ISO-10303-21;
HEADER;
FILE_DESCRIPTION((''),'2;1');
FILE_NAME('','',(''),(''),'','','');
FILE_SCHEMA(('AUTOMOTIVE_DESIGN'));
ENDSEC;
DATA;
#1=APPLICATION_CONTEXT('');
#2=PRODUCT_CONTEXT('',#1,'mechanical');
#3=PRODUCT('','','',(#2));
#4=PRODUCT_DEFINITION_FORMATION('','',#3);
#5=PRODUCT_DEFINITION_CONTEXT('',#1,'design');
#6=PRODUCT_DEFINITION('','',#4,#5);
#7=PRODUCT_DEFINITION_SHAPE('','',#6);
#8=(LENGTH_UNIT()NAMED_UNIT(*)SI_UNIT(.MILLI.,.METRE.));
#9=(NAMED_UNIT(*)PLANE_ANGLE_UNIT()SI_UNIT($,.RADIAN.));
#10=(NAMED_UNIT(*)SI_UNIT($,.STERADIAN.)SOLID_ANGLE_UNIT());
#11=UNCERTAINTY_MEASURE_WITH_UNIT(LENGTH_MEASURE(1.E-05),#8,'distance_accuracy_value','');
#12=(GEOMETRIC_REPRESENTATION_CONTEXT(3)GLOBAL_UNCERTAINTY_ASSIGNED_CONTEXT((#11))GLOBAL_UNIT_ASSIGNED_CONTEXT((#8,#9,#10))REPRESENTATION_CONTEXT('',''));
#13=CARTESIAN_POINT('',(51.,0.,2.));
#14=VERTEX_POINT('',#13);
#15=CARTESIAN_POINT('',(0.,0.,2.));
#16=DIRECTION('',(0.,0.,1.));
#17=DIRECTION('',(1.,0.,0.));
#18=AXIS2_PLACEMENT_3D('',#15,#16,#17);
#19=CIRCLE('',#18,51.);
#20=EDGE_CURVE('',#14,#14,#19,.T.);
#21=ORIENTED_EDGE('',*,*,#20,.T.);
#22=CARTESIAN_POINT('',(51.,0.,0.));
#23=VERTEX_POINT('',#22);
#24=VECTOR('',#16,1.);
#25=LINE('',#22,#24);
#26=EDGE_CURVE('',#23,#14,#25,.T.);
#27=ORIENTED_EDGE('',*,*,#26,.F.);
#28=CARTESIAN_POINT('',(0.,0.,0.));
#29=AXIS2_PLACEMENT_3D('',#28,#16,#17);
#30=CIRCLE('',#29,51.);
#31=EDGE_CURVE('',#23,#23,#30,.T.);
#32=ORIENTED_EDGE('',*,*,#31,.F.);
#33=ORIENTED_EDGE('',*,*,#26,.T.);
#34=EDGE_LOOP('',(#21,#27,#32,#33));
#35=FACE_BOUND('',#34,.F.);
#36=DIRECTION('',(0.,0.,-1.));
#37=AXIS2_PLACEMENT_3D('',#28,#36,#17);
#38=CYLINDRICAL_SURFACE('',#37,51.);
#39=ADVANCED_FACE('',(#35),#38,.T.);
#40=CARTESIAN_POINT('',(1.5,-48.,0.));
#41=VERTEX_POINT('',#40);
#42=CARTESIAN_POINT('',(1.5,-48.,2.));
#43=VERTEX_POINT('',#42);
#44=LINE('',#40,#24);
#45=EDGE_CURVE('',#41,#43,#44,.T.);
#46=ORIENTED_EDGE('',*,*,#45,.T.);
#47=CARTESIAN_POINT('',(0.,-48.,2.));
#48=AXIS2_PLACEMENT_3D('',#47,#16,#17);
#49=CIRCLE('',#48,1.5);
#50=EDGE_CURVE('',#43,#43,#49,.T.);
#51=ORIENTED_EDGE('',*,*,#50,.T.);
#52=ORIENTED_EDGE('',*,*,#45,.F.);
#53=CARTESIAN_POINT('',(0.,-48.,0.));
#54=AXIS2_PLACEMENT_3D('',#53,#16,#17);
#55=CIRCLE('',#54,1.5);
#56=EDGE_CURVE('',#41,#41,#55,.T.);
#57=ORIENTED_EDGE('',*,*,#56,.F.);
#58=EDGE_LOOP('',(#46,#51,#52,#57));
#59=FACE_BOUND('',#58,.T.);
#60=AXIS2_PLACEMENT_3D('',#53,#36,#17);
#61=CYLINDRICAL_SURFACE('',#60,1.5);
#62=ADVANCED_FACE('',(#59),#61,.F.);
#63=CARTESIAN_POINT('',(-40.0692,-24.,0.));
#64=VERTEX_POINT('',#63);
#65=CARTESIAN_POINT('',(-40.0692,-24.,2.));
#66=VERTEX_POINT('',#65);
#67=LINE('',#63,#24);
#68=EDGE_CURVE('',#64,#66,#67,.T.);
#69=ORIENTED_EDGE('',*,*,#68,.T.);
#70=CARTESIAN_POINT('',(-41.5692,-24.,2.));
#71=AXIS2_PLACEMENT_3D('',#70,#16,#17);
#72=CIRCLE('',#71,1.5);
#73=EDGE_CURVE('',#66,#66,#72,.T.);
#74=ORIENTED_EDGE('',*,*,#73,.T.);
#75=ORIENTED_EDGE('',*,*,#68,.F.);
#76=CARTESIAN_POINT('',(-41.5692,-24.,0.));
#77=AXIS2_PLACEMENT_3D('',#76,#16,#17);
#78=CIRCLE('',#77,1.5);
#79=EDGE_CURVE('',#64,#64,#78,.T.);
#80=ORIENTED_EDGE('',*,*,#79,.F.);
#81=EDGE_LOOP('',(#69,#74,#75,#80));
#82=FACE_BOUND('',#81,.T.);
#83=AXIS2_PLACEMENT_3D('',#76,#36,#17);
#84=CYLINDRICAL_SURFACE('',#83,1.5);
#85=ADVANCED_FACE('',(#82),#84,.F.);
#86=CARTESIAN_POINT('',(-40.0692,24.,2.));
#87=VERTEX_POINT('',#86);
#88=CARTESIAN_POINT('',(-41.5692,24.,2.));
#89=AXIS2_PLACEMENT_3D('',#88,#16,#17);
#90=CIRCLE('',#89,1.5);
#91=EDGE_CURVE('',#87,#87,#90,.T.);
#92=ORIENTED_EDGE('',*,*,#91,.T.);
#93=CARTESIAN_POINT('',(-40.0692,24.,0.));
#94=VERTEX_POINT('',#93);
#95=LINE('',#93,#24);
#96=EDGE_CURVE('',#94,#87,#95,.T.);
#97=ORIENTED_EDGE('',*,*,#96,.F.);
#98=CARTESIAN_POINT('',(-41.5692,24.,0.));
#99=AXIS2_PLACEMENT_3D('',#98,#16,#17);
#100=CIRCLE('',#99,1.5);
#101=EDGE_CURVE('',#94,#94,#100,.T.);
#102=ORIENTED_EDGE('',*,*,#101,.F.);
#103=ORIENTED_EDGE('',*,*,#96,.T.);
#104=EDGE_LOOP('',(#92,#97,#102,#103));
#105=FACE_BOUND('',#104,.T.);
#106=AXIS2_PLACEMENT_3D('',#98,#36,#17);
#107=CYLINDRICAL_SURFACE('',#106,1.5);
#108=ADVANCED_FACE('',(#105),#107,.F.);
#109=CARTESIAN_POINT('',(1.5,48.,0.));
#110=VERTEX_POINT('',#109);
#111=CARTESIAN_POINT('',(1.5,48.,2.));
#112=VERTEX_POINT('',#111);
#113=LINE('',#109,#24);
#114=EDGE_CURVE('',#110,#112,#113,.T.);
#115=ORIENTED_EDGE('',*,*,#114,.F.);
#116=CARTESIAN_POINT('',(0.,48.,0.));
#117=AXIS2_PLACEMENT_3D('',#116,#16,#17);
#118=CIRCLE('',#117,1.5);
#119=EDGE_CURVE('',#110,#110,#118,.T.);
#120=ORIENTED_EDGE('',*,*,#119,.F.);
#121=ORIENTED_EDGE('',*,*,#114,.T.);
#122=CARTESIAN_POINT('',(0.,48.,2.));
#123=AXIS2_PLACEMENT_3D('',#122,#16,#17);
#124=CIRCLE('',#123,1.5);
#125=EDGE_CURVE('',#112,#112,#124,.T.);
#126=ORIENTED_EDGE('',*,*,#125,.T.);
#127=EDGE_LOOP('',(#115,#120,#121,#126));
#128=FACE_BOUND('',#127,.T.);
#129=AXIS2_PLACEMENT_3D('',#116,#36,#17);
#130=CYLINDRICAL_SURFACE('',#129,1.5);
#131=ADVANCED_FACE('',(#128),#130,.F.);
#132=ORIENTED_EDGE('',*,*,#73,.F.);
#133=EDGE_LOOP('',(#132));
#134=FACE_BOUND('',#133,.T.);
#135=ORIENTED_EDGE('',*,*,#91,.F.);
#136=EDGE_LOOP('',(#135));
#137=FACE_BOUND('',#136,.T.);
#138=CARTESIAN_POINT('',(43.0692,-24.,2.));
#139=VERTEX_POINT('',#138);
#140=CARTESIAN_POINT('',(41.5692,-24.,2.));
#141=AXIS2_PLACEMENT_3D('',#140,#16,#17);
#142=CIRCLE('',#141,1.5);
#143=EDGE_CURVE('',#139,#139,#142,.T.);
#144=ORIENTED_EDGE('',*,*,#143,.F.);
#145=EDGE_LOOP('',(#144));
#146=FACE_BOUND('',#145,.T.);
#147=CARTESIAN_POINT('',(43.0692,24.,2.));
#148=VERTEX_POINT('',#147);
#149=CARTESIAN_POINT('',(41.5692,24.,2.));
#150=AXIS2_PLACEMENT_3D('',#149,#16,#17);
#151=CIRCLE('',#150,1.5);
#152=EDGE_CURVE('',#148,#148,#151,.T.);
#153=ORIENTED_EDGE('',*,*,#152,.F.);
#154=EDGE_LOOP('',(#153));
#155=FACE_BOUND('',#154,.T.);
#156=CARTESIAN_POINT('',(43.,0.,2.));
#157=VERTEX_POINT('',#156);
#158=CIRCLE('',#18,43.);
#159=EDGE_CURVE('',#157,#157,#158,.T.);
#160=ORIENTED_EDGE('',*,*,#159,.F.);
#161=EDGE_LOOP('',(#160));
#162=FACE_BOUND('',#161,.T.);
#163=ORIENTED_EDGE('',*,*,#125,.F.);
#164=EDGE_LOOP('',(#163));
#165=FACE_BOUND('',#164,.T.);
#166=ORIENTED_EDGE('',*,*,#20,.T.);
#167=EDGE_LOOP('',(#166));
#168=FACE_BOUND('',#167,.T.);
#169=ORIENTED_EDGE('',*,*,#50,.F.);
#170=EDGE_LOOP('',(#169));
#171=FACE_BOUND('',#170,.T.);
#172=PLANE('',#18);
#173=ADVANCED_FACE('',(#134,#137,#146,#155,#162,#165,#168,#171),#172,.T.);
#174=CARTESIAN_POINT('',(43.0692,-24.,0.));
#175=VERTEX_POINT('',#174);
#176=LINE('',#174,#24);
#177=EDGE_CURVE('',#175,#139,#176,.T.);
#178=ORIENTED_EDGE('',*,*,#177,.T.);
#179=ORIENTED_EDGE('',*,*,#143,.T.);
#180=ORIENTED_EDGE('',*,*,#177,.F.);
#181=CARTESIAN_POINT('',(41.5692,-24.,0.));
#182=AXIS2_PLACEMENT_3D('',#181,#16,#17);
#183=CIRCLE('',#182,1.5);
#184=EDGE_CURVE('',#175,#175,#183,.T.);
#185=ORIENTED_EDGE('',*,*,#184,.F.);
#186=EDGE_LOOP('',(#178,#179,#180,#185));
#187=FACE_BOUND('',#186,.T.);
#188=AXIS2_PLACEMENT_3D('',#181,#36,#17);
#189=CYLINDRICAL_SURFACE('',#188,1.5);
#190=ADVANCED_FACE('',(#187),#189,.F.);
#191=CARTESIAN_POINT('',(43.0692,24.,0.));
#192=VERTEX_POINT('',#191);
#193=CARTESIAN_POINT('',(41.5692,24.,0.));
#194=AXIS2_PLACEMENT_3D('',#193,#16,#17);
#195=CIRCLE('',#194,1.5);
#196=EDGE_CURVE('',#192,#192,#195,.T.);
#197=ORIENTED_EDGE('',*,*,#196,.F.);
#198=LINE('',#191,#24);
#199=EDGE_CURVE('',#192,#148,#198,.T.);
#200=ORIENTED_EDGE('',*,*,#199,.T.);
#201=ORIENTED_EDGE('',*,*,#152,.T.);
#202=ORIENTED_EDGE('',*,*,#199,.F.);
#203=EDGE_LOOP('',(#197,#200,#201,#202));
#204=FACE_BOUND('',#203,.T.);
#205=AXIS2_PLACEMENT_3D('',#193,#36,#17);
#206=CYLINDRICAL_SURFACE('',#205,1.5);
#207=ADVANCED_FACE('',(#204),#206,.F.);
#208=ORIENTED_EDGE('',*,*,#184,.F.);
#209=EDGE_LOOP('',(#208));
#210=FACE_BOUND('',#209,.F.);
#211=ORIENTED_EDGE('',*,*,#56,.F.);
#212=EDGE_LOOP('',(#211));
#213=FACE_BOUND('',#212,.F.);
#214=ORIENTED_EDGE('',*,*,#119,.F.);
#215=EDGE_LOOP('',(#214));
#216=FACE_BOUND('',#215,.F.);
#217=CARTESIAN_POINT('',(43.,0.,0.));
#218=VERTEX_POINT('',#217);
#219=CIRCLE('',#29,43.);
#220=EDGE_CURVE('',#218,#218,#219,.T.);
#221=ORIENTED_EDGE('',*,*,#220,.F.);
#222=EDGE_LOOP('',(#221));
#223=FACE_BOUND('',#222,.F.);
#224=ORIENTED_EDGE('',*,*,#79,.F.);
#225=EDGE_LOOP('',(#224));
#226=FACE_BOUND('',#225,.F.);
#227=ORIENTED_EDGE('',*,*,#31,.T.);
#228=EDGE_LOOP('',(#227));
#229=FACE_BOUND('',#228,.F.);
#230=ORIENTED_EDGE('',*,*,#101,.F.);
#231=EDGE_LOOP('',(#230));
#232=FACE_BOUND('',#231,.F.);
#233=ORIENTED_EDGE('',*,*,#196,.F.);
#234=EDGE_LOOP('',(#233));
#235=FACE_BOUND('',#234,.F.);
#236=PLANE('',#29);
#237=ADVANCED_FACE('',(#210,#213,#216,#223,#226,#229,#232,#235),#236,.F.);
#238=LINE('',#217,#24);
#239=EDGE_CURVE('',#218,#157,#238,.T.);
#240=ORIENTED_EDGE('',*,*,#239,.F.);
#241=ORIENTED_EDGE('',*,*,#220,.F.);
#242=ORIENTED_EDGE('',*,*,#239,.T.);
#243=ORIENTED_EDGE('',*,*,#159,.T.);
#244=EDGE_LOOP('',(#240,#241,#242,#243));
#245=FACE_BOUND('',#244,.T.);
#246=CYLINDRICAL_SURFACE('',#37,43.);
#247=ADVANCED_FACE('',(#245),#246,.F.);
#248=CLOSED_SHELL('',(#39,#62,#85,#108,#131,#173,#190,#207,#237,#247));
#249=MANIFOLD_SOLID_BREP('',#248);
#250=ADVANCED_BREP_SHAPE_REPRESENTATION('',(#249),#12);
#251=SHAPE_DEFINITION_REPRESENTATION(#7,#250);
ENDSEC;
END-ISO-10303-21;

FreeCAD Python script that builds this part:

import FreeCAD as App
import Part
import Sketcher
from FreeCAD import Vector
Q = App.Units.Quantity

doc = App.newDocument("Part")
body = doc.addObject("PartDesign::Body", "Body")

sketch1 = doc.addObject("Sketcher::SketchObject", "Sketch")
body.addObject(sketch1)
sketch1.AttachmentSupport = (doc.XY_Plane, [""])
sketch1.MapMode = "FlatFace"
sketch1.addGeometry([
    Part.Circle(Vector(0, 0, 0), Vector(0, 0, 1), 51),
    Part.Circle(Vector(-41.5692, -24, 0), Vector(0, 0, 1), 1.5),
    Part.Circle(Vector(0, -48, 0), Vector(0, 0, 1), 1.5),
    Part.Circle(Vector(41.5692, -24, 0), Vector(0, 0, 1), 1.5),
    Part.Circle(Vector(-41.5692, 24, 0), Vector(0, 0, 1), 1.5),
    Part.Circle(Vector(0, 0, 0), Vector(0, 0, 1), 43),
    Part.Circle(Vector(41.5692, 24, 0), Vector(0, 0, 1), 1.5),
    Part.Circle(Vector(0, 48, 0), Vector(0, 0, 1), 1.5),
], False)
sketch1.addConstraint([
    Sketcher.Constraint("Coincident", 0, 3, -1, 1),
    Sketcher.Constraint("Coincident", 5, 3, -1, 1),
    Sketcher.Constraint("Equal", 1, 2),
    Sketcher.Constraint("Equal", 2, 3),
    Sketcher.Constraint("Equal", 3, 4),
    Sketcher.Constraint("Equal", 4, 6),
    Sketcher.Constraint("Equal", 6, 7),
    Sketcher.Constraint("Symmetric", 3, 3, 4, 3, -1, 1),
    Sketcher.Constraint("Symmetric", 1, 3, 6, 3, -1, 1),
    Sketcher.Constraint("Symmetric", 2, 3, 7, 3, -1, 1),
    Sketcher.Constraint("Symmetric", 1, 3, 3, 3, -2),
    Sketcher.Constraint("PointOnObject", 2, 3, -2),
    Sketcher.Constraint("Diameter", 0, Q("102 mm")),
    Sketcher.Constraint("Diameter", 1, Q("3 mm")),
    Sketcher.Constraint("Diameter", 5, Q("86 mm")),
    Sketcher.Constraint("DistanceY", 2, 3, -1, 1, Q("48 mm")),
    Sketcher.Constraint("DistanceY", 1, 3, 4, 3, Q("48 mm")),
    Sketcher.Constraint("DistanceX", 1, 3, -1, 1, Q("41.5692 mm")),
])
pad1 = doc.addObject("PartDesign::Pad", "Pad")
body.addObject(pad1)
pad1.Profile = sketch1
pad1.Length = 2

doc.recompute()
